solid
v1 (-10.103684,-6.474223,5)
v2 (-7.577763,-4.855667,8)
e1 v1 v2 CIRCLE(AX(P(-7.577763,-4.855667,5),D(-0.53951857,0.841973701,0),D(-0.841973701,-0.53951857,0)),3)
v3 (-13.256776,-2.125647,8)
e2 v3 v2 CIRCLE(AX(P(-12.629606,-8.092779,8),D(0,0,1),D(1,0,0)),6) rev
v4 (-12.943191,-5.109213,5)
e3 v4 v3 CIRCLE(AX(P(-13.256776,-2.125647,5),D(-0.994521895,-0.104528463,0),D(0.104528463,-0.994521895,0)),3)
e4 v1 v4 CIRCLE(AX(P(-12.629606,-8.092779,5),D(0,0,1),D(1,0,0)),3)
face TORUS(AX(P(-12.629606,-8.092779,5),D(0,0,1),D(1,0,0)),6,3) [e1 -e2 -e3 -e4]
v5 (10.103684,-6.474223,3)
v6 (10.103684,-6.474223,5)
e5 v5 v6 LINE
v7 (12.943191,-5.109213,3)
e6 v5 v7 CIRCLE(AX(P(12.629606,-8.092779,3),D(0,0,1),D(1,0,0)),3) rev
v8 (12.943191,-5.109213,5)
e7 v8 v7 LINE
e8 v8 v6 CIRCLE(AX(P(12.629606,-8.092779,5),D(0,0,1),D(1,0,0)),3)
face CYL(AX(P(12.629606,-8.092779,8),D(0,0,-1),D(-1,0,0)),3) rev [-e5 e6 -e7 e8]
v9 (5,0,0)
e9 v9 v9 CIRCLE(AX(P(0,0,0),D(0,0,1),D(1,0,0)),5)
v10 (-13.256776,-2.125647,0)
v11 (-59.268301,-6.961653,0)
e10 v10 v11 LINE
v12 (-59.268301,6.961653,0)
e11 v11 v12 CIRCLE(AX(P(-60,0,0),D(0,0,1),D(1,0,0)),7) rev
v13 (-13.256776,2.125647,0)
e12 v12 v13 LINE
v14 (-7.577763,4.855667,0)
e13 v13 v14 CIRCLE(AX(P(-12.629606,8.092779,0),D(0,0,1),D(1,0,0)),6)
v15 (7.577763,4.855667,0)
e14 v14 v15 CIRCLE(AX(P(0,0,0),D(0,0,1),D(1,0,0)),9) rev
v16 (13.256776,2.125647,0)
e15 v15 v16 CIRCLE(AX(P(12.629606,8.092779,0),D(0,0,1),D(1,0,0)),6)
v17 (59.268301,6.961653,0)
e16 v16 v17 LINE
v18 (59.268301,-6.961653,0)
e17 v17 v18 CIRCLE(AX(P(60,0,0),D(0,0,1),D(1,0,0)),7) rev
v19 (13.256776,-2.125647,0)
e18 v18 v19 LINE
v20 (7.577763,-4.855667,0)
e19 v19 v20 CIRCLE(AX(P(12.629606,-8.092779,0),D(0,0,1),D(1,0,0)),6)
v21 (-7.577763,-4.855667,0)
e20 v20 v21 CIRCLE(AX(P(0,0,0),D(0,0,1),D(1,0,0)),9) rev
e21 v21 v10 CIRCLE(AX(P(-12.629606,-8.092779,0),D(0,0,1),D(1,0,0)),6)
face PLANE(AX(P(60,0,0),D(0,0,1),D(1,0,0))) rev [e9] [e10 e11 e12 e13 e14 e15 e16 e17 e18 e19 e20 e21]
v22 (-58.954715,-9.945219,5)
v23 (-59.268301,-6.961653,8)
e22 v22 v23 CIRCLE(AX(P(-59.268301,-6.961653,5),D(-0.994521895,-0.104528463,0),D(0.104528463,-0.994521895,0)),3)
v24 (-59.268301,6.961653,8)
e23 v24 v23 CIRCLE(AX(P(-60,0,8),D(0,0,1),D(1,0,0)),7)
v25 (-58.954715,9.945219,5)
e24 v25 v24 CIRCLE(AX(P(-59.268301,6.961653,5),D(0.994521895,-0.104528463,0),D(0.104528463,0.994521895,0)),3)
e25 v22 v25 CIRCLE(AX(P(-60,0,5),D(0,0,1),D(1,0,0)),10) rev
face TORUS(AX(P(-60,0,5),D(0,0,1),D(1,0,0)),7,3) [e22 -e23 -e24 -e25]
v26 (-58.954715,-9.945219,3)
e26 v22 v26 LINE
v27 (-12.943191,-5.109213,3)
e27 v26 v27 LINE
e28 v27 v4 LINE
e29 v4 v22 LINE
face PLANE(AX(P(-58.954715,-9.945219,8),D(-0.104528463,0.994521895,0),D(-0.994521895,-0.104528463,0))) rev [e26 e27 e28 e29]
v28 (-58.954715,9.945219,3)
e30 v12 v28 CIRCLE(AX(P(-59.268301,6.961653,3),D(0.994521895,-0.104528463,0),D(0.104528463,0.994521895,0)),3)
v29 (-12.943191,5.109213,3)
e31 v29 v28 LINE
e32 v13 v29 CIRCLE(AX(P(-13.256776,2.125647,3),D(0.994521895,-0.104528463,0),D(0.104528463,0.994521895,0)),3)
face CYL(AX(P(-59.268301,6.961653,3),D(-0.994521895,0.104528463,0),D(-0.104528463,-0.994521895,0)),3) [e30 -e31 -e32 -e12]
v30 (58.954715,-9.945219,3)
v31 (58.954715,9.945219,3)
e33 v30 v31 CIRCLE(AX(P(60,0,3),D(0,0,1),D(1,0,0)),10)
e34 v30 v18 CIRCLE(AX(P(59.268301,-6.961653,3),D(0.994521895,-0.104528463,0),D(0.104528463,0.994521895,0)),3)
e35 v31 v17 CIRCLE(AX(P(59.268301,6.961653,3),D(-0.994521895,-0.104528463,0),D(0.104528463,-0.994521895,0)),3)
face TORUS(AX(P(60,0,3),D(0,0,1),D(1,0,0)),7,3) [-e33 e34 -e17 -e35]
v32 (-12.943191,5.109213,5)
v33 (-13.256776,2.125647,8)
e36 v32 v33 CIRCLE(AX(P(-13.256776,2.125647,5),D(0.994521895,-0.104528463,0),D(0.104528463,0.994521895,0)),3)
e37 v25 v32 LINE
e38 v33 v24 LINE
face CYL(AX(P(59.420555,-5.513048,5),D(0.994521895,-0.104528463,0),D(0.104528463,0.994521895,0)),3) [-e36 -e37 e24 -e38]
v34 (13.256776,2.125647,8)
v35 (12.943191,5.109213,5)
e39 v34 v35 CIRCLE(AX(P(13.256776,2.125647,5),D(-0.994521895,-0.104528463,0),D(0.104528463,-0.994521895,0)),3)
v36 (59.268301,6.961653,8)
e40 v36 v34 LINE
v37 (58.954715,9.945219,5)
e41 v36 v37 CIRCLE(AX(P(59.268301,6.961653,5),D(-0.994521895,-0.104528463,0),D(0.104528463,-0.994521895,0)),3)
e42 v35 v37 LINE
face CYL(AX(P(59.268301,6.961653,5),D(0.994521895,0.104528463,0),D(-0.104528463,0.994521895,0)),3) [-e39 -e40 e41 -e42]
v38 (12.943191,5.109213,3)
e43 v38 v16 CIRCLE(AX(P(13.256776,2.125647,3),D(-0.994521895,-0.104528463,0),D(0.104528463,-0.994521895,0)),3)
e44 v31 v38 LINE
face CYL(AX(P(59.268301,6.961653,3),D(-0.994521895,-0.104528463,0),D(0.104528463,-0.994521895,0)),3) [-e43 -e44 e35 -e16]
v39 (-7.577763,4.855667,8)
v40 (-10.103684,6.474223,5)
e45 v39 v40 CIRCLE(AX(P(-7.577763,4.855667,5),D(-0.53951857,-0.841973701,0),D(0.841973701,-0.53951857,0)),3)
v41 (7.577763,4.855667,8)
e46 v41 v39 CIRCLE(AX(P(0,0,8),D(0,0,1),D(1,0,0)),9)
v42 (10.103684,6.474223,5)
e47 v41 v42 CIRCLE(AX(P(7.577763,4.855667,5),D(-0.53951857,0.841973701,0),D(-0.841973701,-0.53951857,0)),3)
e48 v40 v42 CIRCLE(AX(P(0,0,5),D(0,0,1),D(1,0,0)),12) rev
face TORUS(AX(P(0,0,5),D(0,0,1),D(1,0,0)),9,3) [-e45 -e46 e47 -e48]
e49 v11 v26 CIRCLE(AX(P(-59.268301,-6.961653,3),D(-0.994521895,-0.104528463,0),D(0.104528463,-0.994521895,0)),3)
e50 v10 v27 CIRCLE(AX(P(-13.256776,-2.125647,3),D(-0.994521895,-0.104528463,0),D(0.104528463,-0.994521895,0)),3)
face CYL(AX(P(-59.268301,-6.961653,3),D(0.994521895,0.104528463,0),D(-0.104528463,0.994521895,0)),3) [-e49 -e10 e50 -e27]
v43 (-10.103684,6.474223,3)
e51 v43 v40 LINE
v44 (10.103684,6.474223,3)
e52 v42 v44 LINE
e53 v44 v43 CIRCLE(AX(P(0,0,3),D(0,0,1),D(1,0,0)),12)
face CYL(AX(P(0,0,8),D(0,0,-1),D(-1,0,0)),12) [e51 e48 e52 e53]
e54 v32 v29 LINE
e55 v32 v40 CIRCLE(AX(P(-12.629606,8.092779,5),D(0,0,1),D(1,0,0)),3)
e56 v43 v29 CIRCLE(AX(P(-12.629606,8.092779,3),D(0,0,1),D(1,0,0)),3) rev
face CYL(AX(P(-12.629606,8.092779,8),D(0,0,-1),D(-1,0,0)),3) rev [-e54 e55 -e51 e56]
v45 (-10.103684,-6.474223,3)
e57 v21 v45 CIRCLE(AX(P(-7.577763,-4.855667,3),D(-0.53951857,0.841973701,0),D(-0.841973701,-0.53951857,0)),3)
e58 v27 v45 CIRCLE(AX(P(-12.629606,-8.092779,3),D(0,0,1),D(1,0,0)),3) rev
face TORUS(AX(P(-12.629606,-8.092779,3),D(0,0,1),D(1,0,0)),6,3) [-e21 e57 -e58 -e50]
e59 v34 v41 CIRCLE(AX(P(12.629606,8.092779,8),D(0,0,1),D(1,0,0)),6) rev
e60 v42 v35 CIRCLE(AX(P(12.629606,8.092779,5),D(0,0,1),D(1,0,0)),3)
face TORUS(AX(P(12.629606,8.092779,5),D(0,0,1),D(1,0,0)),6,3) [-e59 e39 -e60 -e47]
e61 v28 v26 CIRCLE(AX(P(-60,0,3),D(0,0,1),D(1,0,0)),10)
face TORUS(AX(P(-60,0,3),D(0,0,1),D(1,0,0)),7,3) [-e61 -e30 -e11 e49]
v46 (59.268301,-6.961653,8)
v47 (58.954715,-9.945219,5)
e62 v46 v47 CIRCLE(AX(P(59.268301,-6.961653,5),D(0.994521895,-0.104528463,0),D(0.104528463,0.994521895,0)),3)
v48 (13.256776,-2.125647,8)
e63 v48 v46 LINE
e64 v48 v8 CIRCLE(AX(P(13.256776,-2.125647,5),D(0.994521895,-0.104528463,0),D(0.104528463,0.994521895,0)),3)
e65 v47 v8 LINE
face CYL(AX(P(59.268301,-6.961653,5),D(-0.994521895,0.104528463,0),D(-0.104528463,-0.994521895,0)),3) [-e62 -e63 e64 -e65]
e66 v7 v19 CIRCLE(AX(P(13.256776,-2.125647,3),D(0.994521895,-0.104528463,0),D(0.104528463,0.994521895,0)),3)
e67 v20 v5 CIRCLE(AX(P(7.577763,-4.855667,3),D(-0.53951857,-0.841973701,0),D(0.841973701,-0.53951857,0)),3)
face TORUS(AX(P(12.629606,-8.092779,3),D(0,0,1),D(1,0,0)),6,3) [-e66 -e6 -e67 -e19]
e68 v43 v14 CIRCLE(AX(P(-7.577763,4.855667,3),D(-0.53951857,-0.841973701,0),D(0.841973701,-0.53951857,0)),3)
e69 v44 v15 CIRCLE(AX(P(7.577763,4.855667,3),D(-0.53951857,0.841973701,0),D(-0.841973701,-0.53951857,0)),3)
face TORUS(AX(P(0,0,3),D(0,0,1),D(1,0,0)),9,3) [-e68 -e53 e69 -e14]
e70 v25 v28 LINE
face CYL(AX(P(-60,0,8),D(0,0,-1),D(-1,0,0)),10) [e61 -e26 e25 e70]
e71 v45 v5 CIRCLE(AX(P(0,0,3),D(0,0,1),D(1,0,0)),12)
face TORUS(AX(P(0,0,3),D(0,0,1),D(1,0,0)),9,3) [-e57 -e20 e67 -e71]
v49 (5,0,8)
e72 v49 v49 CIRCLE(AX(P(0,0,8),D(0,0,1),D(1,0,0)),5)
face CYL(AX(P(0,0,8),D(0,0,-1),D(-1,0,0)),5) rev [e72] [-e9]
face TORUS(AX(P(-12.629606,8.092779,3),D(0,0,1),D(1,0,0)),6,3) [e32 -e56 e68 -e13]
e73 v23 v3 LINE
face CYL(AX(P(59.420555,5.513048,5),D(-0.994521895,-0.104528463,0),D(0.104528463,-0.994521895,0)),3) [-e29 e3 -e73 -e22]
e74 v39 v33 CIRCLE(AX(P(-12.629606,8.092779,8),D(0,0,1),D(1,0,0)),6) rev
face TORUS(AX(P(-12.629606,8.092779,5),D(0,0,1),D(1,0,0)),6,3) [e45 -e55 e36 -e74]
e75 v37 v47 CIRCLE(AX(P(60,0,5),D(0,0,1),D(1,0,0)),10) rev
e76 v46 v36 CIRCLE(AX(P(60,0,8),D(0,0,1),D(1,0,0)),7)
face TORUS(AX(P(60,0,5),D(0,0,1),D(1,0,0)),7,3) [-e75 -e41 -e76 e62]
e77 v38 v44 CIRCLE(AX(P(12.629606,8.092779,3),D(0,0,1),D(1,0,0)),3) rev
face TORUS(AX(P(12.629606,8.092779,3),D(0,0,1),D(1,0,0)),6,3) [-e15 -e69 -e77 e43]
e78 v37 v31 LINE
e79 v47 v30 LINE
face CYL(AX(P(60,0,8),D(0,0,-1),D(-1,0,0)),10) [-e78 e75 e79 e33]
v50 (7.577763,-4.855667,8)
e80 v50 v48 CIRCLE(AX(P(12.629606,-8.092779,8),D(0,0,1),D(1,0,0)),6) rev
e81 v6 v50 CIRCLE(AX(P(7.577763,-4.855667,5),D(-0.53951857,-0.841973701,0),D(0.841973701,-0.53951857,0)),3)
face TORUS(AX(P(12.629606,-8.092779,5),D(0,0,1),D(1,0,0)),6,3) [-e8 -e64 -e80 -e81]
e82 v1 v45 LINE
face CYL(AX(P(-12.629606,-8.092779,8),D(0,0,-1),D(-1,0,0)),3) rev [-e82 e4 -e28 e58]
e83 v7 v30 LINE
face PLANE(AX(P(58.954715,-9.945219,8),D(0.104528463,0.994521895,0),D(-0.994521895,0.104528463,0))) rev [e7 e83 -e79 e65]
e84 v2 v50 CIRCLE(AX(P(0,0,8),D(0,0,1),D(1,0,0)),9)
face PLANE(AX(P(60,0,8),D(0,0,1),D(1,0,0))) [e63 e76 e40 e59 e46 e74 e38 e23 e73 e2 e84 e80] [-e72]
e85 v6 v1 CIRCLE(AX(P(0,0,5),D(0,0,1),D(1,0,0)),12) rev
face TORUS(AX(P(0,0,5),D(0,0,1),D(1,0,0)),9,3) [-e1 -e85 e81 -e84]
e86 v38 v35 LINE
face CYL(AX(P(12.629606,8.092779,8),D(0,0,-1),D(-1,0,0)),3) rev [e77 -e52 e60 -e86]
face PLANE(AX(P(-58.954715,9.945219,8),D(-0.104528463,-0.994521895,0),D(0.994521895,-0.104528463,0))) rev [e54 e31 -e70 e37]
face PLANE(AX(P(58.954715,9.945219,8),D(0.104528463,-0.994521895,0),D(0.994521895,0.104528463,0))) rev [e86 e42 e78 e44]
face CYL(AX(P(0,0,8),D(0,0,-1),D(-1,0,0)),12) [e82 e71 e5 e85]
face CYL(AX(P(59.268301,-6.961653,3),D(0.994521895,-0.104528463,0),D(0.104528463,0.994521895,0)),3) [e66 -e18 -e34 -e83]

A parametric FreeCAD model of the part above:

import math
import FreeCAD as App
import Part
import Sketcher

V = App.Vector
Q = App.Units.Quantity


def edges_at(feature, points):
    """Names of the edges that pass closest to the given points."""
    edges = feature.Shape.Edges
    near = lambda p: min(range(len(edges)), key=lambda i: edges[i].distToShape(Part.Vertex(*p))[0])
    return sorted({f"Edge{near(p) + 1}" for p in points})

doc = App.newDocument("Part")
body = doc.addObject("PartDesign::Body", "Body")

# Sketch on XY plane
sketch1 = body.newObject("Sketcher::SketchObject", "Sketch")
sketch1.AttachmentSupport = (doc.getObject("XY_Plane"), [""])
sketch1.MapMode = "FlatFace"
sketch1.addGeometry(Part.LineSegment(V(59, 10, 0), V(11, 5, 0)), False)
sketch1.addGeometry(Part.ArcOfCircle(Part.Circle(V(0, 0, 0), V(0, 0, 1), 12), math.radians(24), math.radians(156)), False)
sketch1.addGeometry(Part.LineSegment(V(-11, 5, 0), V(-59, 10, 0)), False)
sketch1.addGeometry(Part.ArcOfCircle(Part.Circle(V(-60, 0, 0), V(0, 0, 1), 10), math.radians(84), math.radians(276)), False)
sketch1.addGeometry(Part.LineSegment(V(-59, -10, 0), V(-11, -5, 0)), False)
sketch1.addGeometry(Part.ArcOfCircle(Part.Circle(V(0, 0, 0), V(0, 0, 1), 12), math.radians(-156), math.radians(-24)), False)
sketch1.addGeometry(Part.LineSegment(V(11, -5, 0), V(59, -10, 0)), False)
sketch1.addGeometry(Part.ArcOfCircle(Part.Circle(V(60, 0, 0), V(0, 0, 1), 10), math.radians(-96), math.radians(96)), False)
sketch1.addGeometry(Part.Circle(V(0, 0, 0), V(0, 0, 1), 5), False)
sketch1.addConstraint(Sketcher.Constraint("Coincident", 0, 2, 1, 1))
sketch1.addConstraint(Sketcher.Constraint("Coincident", 1, 2, 2, 1))
sketch1.addConstraint(Sketcher.Constraint("Tangent", 2, 2, 3, 1))
sketch1.addConstraint(Sketcher.Constraint("Tangent", 3, 2, 4, 1))
sketch1.addConstraint(Sketcher.Constraint("Coincident", 4, 2, 5, 1))
sketch1.addConstraint(Sketcher.Constraint("Coincident", 5, 2, 6, 1))
sketch1.addConstraint(Sketcher.Constraint("Tangent", 6, 2, 7, 1))
sketch1.addConstraint(Sketcher.Constraint("Tangent", 7, 2, 0, 1))
sketch1.addConstraint(Sketcher.Constraint("Coincident", 1, 3, -1, 1))
sketch1.addConstraint(Sketcher.Constraint("Coincident", 5, 3, -1, 1))
sketch1.addConstraint(Sketcher.Constraint("Coincident", 8, 3, -1, 1))
sketch1.addConstraint(Sketcher.Constraint("Equal", 1, 5))
sketch1.addConstraint(Sketcher.Constraint("Equal", 3, 7))
sketch1.addConstraint(Sketcher.Constraint("Symmetric", 3, 3, 7, 3, -1, 1))
sketch1.addConstraint(Sketcher.Constraint("Symmetric", 3, 2, 6, 2, -2))
sketch1.addConstraint(Sketcher.Constraint("Parallel", 0, 4))
sketch1.addConstraint(Sketcher.Constraint("Parallel", 2, 6))
sketch1.addConstraint(Sketcher.Constraint("Diameter", 8, Q("10 mm")))
sketch1.addConstraint(Sketcher.Constraint("Radius", 1, Q("12 mm")))
sketch1.addConstraint(Sketcher.Constraint("Radius", 3, Q("10 mm")))
sketch1.addConstraint(Sketcher.Constraint("Angle", 0, Q("-174 deg")))
sketch1.addConstraint(Sketcher.Constraint("DistanceX", 3, 3, -1, 1, Q("60 mm")))
pad1 = body.newObject("PartDesign::Pad", "Pad")
pad1.Profile = sketch1
pad1.Length = 8
doc.recompute()

fillet = body.newObject("PartDesign::Fillet", "Fillet")
fillet.Base = (pad1, edges_at(pad1, [
    (10.954, -4.9, 4),
    (-10.954, -4.9, 4),
    (-10.954, 4.9, 4),
    (10.954, 4.9, 4),
]))
fillet.Radius = 3
doc.recompute()

fillet2 = body.newObject("PartDesign::Fillet", "Fillet001")
fillet2.Base = (fillet, edges_at(fillet, [
    (-70, 0, 8),
    (-35.949, -7.527, 8),
    (-35.949, 7.527, 8),
    (0, 12, 8),
    (0, -12, 8),
    (35.949, -7.527, 8),
    (-11.33, 5.389, 8),
    (-11.33, -5.389, 8),
    (11.33, -5.389, 8),
    (11.33, 5.389, 8),
    (70, 0, 8),
    (35.949, 7.527, 8),
]))
fillet2.Radius = 3
doc.recompute()

fillet3 = body.newObject("PartDesign::Fillet", "Fillet002")
fillet3.Base = (fillet2, edges_at(fillet2, [
    (35.949, 7.527, 0),
    (70, 0, 0),
    (-35.949, 7.527, 0),
    (0, 12, 0),
    (0, -12, 0),
    (35.949, -7.527, 0),
    (-11.33, 5.389, 0),
    (-11.33, -5.389, 0),
    (11.33, -5.389, 0),
    (11.33, 5.389, 0),
    (-35.949, -7.527, 0),
    (-70, 0, 0),
]))
fillet3.Radius = 3

doc.recompute()
